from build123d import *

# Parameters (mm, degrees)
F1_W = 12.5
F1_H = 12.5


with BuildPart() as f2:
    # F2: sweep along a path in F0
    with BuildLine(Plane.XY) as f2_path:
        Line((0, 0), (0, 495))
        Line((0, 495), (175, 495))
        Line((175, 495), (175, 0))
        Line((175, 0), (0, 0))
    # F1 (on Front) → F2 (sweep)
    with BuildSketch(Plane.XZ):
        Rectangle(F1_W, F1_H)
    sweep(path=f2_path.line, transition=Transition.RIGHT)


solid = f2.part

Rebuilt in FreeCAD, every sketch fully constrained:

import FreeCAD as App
import Part
import Sketcher

V = App.Vector
Q = App.Units.Quantity


def add_polygon(sketch, points):
    """Adds a closed chain of lines whose ends are joined by coincident constraints."""
    first, n = sketch.GeometryCount, len(points)
    for a, b in zip(points, points[1:] + points[:1]):
        sketch.addGeometry(Part.LineSegment(App.Vector(*a, 0), App.Vector(*b, 0)), False)
    for i in range(n):
        sketch.addConstraint(Sketcher.Constraint("Coincident", first + i, 2, first + (i + 1) % n, 1))

doc = App.newDocument("Part")
params = doc.addObject("Spreadsheet::Sheet", "Params")
for row, (alias, value) in enumerate([
    ("sketch1_width", "12.5 mm"),
    ("sketch2_width", "175 mm"),
    ("sketch2_height", "495 mm"),
], start=1):
    params.set(f"A{row}", alias)
    params.set(f"B{row}", "=" + value)
    params.setAlias(f"B{row}", alias)

body = doc.addObject("PartDesign::Body", "Body")

# Sketch on XZ plane
sketch1 = body.newObject("Sketcher::SketchObject", "Sketch")
sketch1.AttachmentSupport = (doc.getObject("XZ_Plane"), [""])
sketch1.MapMode = "FlatFace"
add_polygon(sketch1, [(-6, 6), (-6, -6), (6, -6), (6, 6)])  # lines 0-3
sketch1.addConstraint([
    Sketcher.Constraint("Vertical", 0),
    Sketcher.Constraint("Horizontal", 1),
    Sketcher.Constraint("Vertical", 2),
    Sketcher.Constraint("Horizontal", 3),
    Sketcher.Constraint("Symmetric", 0, 2, 2, 2, -1, 1),
    Sketcher.Constraint("Equal", 3, 0),
    Sketcher.Constraint("DistanceX", 1, 1, 1, 2, Q("12.5 mm")),
])
sketch1.setExpression("Constraints[10]", "Params.sketch1_width")

# Sketch on XY plane
sketch2 = body.newObject("Sketcher::SketchObject", "Sketch001")
sketch2.AttachmentSupport = (doc.getObject("XY_Plane"), [""])
sketch2.MapMode = "FlatFace"
add_polygon(sketch2, [(0, 0), (0, 495), (175, 495), (175, 0)])  # lines 0-3
sketch2.addConstraint([
    Sketcher.Constraint("Vertical", 0),
    Sketcher.Constraint("Horizontal", 1),
    Sketcher.Constraint("Vertical", 2),
    Sketcher.Constraint("Horizontal", 3),
    Sketcher.Constraint("Coincident", 3, 2, -1, 1),
    Sketcher.Constraint("DistanceX", 1, 1, 1, 2, Q("175 mm")),
    Sketcher.Constraint("DistanceY", 0, 1, 0, 2, Q("495 mm")),
])
sketch2.setExpression("Constraints[9]", "Params.sketch2_width")
sketch2.setExpression("Constraints[10]", "Params.sketch2_height")
doc.recompute()

additivepipe = body.newObject("PartDesign::AdditivePipe", "AdditivePipe")
additivepipe.Profile = sketch1
additivepipe.Spine = (sketch2, ["Edge1", "Edge2", "Edge3", "Edge4"])
additivepipe.Transition = "Right corner"

doc.recompute()
